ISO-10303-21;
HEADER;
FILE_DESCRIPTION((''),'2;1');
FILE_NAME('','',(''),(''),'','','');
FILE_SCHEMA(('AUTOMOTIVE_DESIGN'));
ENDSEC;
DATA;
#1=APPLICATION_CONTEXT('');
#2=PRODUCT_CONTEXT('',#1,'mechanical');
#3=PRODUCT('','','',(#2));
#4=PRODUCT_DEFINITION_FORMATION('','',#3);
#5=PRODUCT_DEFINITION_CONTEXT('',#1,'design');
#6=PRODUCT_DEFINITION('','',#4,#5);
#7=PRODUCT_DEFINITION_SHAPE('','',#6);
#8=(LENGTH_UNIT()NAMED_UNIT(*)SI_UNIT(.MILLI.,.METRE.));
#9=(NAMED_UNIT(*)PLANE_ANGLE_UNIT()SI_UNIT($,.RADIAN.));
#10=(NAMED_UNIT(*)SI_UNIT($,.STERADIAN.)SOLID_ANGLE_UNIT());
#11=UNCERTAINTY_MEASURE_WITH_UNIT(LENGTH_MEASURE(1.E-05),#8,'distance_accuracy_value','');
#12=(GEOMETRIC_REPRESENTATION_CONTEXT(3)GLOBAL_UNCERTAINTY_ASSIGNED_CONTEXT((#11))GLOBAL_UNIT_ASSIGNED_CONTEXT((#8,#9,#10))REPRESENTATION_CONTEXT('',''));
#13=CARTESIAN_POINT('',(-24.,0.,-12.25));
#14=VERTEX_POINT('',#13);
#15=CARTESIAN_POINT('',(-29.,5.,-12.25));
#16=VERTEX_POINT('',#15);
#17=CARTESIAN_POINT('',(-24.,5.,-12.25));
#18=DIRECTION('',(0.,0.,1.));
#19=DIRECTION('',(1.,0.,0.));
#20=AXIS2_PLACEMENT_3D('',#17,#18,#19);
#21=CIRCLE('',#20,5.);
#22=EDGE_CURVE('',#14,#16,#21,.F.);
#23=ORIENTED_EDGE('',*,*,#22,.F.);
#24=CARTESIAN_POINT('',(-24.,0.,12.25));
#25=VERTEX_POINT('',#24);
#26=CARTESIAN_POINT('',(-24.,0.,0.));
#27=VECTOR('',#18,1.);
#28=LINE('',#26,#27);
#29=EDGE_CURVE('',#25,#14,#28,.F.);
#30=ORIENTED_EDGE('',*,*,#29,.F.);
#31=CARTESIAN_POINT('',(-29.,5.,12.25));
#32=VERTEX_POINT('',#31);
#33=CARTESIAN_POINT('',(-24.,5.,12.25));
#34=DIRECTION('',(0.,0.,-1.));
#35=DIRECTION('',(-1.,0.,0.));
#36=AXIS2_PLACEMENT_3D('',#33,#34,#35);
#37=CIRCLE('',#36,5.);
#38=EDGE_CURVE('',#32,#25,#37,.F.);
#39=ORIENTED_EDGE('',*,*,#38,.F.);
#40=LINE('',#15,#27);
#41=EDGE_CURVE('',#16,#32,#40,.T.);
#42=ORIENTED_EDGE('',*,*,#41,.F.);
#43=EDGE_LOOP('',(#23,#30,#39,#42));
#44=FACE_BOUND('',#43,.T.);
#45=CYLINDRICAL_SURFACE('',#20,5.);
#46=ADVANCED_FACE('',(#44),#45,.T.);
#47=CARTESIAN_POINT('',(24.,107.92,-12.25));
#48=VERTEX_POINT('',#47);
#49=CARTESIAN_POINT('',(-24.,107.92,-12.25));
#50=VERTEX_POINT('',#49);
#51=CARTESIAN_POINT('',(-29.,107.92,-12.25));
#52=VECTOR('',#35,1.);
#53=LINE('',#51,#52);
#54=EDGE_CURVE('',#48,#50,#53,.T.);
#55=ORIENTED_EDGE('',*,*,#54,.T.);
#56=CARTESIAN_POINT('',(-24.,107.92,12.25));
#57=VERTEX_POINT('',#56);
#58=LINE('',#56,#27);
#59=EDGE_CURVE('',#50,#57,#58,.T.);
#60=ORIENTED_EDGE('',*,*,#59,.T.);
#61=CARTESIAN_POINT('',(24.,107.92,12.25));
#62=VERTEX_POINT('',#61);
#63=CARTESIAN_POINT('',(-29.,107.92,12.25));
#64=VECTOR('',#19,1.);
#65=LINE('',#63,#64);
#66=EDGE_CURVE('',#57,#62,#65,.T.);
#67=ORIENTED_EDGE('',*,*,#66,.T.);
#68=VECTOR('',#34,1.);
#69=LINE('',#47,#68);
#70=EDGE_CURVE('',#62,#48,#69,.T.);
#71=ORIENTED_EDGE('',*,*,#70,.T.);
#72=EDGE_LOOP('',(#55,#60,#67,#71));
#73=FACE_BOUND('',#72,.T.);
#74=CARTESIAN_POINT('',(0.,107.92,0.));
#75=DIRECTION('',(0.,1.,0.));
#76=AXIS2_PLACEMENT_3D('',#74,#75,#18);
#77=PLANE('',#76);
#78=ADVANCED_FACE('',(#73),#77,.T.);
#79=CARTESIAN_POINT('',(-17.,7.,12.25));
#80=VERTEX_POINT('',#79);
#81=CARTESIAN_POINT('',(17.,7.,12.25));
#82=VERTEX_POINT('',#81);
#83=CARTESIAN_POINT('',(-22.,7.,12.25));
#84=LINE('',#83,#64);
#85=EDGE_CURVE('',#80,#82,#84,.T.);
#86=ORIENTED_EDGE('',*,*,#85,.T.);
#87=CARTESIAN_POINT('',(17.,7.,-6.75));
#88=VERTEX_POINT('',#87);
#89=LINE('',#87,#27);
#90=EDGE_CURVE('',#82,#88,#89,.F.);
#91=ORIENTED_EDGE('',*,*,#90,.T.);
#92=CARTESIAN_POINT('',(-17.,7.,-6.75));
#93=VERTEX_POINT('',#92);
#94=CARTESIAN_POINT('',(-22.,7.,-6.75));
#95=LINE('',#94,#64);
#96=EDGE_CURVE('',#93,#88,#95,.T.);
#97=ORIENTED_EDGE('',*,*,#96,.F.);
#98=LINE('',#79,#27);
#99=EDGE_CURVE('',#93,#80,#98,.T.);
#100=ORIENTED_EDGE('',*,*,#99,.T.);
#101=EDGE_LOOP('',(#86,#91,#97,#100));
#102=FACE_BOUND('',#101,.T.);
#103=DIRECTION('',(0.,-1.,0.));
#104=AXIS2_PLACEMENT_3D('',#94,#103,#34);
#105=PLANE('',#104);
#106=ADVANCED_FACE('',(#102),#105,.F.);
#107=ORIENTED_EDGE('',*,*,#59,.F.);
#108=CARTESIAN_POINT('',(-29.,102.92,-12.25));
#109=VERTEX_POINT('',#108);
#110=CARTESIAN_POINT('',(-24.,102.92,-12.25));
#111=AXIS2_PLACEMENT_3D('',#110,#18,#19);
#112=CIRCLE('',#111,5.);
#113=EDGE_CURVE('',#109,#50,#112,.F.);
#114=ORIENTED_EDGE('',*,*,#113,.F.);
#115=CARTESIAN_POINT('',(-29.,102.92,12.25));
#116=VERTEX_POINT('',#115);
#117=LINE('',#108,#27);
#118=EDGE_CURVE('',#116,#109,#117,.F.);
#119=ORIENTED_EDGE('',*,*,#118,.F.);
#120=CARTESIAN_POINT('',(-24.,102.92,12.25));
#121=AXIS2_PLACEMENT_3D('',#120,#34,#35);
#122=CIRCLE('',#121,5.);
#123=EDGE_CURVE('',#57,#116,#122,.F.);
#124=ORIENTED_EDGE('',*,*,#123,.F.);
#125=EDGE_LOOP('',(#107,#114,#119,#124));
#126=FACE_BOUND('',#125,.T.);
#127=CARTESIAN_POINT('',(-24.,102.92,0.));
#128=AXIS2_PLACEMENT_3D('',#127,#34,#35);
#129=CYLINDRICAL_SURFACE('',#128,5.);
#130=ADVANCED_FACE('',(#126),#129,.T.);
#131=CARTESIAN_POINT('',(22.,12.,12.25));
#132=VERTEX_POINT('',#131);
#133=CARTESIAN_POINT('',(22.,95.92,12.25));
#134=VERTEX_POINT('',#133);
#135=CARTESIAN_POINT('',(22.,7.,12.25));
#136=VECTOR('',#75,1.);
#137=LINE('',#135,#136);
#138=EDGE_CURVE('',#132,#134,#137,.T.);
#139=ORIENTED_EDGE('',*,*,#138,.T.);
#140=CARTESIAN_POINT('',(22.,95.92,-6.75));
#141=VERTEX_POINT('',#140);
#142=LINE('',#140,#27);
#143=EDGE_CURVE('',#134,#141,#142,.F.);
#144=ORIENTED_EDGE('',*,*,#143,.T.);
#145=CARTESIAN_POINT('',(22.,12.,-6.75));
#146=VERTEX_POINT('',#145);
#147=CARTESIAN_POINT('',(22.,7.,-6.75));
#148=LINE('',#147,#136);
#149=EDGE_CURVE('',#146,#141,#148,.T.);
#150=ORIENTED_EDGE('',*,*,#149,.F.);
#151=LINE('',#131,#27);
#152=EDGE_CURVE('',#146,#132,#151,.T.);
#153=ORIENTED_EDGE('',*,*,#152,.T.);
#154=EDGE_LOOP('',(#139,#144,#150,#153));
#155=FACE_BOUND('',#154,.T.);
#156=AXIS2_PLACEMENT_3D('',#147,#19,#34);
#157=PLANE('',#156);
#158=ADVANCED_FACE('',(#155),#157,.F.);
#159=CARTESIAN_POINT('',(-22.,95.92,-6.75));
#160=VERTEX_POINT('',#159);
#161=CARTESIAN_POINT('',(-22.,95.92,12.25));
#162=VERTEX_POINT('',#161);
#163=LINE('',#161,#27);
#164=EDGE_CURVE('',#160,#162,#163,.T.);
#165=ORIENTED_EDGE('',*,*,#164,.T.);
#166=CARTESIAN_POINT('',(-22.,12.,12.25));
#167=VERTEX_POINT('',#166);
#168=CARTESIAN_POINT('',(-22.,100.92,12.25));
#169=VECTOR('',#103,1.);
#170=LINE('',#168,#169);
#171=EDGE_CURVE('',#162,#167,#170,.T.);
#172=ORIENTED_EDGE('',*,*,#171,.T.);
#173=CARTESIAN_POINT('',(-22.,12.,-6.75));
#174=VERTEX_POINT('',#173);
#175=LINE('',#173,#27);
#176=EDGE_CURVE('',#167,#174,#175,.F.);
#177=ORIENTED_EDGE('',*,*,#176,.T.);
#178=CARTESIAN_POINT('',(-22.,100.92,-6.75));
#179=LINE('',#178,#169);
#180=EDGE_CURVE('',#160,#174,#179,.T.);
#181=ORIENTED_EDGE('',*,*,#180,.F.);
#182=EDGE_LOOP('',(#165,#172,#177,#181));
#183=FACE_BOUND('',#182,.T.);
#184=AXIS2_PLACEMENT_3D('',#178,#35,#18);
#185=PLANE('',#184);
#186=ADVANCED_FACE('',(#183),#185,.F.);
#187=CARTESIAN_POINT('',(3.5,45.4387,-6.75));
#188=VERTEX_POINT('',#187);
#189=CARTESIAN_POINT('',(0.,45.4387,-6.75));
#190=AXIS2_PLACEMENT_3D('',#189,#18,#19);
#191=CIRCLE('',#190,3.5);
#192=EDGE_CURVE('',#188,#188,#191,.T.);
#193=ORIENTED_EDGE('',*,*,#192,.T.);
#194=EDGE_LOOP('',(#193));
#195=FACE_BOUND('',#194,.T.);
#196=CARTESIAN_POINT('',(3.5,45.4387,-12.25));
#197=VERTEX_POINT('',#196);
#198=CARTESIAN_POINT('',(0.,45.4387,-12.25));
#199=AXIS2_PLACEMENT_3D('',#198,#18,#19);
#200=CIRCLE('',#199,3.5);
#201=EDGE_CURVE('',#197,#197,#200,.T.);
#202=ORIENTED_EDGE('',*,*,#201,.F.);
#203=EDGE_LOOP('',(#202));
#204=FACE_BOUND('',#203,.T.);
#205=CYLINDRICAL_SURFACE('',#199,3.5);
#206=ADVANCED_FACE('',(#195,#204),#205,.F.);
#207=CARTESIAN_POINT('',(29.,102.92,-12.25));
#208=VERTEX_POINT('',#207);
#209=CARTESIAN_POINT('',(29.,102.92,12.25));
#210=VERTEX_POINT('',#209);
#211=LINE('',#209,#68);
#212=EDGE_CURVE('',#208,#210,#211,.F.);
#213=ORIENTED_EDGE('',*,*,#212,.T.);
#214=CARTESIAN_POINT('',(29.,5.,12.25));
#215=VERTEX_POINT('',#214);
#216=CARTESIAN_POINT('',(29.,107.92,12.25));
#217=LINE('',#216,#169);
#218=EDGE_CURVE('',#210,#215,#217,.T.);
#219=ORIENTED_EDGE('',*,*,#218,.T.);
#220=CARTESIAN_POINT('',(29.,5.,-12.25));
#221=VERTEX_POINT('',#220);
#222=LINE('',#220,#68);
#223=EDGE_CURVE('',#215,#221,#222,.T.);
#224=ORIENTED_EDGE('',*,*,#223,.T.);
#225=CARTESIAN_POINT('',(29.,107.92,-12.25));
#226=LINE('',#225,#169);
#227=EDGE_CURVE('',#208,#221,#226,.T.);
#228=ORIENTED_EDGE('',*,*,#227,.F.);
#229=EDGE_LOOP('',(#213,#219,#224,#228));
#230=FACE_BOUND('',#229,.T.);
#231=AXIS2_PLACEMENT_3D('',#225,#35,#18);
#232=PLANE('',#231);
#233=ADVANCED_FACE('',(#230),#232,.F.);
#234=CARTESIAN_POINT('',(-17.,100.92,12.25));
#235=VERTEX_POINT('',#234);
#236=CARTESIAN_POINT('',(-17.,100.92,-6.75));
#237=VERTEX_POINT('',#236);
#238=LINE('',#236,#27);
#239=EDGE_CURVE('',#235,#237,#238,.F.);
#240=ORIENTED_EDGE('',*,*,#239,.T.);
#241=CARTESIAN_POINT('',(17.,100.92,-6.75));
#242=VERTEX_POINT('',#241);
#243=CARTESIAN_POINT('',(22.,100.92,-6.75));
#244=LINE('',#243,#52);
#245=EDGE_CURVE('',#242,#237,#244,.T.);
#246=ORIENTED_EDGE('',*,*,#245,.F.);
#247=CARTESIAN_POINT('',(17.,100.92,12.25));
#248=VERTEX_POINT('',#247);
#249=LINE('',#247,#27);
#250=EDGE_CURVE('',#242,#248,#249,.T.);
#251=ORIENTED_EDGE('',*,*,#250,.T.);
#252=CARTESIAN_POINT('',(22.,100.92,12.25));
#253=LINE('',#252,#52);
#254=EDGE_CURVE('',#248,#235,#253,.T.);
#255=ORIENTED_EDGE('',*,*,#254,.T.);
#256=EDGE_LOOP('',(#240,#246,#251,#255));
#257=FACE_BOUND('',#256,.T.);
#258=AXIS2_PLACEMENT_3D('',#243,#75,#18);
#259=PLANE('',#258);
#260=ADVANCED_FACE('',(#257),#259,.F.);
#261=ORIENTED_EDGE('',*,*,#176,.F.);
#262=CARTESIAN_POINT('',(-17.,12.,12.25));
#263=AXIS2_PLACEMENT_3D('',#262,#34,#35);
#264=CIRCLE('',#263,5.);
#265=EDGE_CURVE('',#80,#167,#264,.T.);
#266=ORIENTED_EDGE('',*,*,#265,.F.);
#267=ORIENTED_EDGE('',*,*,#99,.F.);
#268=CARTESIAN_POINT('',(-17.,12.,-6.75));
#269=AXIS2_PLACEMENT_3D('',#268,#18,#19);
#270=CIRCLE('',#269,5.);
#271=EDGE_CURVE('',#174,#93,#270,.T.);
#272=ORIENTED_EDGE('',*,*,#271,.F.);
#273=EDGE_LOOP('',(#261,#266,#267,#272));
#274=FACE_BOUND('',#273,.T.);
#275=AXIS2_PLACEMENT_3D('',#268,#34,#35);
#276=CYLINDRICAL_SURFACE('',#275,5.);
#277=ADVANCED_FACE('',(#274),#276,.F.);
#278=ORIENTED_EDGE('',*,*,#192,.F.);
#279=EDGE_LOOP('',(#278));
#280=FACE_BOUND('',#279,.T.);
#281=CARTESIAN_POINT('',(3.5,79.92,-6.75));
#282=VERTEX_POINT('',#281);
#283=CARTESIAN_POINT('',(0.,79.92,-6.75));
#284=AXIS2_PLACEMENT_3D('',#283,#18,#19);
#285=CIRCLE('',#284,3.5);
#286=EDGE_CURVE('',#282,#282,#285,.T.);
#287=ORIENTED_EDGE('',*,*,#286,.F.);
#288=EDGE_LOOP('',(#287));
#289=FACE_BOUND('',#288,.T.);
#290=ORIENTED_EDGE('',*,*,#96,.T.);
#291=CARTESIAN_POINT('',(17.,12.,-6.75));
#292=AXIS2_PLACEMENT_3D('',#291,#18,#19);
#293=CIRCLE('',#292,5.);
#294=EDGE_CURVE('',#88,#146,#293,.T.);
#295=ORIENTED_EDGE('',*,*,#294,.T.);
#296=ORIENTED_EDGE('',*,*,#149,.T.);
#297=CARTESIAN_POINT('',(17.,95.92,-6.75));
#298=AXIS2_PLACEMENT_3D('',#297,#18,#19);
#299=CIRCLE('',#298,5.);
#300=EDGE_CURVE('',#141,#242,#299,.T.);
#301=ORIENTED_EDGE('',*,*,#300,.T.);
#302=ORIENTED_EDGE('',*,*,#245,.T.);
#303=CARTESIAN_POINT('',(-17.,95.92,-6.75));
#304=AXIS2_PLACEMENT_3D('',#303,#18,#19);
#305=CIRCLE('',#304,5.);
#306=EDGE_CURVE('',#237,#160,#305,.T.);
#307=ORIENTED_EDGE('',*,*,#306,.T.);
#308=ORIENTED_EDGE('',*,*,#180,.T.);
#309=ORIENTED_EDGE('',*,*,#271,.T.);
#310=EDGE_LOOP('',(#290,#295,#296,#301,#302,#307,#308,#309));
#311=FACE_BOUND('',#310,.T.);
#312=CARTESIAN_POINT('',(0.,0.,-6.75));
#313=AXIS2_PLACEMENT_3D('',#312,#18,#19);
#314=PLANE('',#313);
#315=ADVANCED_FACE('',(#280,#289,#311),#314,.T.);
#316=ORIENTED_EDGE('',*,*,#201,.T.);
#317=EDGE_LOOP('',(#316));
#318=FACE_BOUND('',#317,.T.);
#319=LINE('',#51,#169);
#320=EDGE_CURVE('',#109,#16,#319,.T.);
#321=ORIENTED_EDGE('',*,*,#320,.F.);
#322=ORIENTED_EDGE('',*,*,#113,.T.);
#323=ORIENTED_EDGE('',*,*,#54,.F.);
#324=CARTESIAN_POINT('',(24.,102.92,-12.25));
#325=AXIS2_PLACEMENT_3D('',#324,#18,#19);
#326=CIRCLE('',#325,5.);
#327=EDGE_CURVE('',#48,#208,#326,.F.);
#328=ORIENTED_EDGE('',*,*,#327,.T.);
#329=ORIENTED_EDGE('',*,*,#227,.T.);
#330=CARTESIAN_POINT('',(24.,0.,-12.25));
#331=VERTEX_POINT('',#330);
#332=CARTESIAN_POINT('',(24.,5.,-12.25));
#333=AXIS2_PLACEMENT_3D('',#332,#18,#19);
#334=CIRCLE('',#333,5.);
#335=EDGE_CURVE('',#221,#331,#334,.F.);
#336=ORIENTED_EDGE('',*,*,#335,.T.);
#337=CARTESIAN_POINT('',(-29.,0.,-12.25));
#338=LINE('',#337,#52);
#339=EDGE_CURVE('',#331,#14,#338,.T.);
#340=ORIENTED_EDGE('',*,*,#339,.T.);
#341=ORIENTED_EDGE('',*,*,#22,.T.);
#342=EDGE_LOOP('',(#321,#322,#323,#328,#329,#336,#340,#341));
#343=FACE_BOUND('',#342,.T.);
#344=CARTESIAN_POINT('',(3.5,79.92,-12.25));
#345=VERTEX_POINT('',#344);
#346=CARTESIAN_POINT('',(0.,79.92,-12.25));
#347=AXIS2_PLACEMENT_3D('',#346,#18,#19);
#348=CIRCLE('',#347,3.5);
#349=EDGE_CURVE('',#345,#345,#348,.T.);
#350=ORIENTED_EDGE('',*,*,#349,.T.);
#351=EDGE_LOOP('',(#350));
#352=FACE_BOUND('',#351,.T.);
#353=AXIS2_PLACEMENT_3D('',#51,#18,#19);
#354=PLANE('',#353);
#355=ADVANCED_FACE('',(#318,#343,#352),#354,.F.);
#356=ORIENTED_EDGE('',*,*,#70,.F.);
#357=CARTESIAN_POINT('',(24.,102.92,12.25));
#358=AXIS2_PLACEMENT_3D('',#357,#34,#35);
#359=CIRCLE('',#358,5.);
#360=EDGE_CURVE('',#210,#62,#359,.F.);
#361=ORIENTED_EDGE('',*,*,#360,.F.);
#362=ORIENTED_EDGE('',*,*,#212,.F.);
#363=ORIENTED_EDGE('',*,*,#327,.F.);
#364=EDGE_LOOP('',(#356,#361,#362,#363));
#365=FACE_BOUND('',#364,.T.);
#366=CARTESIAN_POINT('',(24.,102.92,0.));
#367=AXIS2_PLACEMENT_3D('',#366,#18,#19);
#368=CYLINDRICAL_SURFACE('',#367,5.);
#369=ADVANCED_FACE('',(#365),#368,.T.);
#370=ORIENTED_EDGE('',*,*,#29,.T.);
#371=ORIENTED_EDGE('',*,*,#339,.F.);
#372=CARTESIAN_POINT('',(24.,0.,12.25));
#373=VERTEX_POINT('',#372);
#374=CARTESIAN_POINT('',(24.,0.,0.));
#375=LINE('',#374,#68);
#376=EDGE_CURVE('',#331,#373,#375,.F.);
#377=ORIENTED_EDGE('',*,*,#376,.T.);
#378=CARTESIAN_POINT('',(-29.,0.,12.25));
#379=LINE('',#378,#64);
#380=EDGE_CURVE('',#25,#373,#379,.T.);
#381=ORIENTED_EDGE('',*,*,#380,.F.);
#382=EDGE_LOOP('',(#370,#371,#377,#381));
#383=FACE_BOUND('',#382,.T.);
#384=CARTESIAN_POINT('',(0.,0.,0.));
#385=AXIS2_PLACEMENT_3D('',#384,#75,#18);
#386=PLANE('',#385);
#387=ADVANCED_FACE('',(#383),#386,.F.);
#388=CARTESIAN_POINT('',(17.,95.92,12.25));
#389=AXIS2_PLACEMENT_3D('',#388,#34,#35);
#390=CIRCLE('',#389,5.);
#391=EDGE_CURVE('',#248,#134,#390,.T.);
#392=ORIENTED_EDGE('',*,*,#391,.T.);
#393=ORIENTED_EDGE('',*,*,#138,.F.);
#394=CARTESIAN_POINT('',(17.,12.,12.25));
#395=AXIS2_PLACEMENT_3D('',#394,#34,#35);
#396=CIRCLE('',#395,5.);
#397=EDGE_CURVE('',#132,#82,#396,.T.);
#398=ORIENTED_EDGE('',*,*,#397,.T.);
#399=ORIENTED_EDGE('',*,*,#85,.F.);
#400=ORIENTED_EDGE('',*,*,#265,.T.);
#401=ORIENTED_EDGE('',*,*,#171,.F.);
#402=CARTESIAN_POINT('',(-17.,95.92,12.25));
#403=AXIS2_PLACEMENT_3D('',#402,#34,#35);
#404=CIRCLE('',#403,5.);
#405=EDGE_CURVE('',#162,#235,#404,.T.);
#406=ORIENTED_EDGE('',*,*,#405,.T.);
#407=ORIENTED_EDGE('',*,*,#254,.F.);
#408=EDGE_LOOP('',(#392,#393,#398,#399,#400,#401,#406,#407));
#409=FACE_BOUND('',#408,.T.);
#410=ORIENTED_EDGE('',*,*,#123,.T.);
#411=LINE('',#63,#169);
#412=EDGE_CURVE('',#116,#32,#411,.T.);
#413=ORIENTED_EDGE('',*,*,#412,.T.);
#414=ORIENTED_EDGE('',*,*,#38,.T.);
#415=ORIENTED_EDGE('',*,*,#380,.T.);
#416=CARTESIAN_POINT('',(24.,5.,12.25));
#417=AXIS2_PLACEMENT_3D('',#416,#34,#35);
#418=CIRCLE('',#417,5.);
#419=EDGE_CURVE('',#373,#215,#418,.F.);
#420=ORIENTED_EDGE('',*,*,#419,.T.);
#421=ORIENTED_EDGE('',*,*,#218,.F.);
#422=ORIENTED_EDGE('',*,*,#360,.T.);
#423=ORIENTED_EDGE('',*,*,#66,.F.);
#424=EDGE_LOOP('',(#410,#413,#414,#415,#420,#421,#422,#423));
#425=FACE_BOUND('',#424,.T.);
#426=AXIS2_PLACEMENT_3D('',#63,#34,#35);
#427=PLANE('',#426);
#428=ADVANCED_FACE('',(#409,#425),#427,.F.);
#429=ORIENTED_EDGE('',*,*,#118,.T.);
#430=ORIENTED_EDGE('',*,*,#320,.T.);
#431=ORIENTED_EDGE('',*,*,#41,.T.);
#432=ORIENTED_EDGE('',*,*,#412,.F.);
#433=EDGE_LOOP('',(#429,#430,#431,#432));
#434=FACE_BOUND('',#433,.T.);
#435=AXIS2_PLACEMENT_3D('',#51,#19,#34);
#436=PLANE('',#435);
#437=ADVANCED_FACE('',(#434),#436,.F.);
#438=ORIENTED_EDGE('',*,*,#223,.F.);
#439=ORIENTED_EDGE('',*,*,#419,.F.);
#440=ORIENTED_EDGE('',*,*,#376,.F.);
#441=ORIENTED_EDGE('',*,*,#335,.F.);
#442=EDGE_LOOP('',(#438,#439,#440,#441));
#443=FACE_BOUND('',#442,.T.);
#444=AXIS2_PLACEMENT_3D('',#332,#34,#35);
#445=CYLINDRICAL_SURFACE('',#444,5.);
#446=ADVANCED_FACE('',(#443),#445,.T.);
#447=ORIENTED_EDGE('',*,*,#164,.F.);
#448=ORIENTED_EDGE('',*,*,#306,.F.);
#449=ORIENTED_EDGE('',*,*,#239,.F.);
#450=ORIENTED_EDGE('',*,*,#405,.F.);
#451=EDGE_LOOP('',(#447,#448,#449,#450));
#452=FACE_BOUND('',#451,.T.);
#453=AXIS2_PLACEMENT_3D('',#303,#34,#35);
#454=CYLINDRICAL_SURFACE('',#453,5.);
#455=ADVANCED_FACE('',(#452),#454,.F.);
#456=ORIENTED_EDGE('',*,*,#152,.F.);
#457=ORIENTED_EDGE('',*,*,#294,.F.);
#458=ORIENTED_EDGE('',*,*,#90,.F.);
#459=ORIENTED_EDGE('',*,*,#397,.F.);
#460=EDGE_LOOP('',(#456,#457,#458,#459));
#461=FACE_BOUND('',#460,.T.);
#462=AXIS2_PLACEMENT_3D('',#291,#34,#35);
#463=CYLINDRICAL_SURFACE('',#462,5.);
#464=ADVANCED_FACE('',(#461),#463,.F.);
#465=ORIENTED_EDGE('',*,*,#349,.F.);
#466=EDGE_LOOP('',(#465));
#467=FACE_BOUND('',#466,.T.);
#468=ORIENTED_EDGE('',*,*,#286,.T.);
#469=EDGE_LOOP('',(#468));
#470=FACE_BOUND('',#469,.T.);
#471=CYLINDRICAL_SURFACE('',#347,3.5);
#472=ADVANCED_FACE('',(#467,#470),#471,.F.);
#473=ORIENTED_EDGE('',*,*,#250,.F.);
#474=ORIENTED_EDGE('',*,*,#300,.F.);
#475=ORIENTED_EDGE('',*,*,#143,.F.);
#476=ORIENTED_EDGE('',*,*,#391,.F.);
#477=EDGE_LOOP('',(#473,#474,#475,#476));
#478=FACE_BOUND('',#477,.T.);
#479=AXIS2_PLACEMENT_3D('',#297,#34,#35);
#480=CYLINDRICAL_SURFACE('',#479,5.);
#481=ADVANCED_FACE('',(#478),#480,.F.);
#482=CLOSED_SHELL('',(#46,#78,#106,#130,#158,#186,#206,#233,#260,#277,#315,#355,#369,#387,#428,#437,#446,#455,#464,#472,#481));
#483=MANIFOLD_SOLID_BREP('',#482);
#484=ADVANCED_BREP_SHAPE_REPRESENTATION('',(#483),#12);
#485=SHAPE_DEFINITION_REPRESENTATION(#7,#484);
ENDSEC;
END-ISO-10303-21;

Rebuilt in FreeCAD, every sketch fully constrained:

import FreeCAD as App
import Part
import Sketcher
from FreeCAD import Vector


def edges_at(feature, points):
    """Names of the edges that pass closest to the given points."""
    edges = feature.Shape.Edges
    near = lambda p: min(range(len(edges)), key=lambda i: edges[i].distToShape(Part.Vertex(*p))[0])
    return sorted({f"Edge{near(p) + 1}" for p in points})

doc = App.newDocument("Part")
body = doc.addObject("PartDesign::Body", "Body")

sketch1 = doc.addObject("Sketcher::SketchObject", "Sketch")
body.addObject(sketch1)
sketch1.AttachmentSupport = (doc.XZ_Plane, [""])
sketch1.MapMode = "FlatFace"
sketch1.addGeometry([
    Part.LineSegment(Vector(-29, -12, 0), Vector(-29, 12, 0)),
    Part.LineSegment(Vector(-29, 12, 0), Vector(29, 12, 0)),
    Part.LineSegment(Vector(29, 12, 0), Vector(29, -12, 0)),
    Part.LineSegment(Vector(29, -12, 0), Vector(-29, -12, 0)),
], False)
sketch1.addConstraint([
    Sketcher.Constraint("Coincident", 0, 2, 1, 1),
    Sketcher.Constraint("Coincident", 1, 2, 2, 1),
    Sketcher.Constraint("Coincident", 2, 2, 3, 1),
    Sketcher.Constraint("Coincident", 3, 2, 0, 1),
    Sketcher.Constraint("Vertical", 0),
    Sketcher.Constraint("Horizontal", 1),
    Sketcher.Constraint("Vertical", 2),
    Sketcher.Constraint("Horizontal", 3),
    Sketcher.Constraint("Symmetric", 0, 2, 2, 2, -1, 1),
    Sketcher.Constraint("DistanceX", 1, 1, 1, 2, 58.0),
    Sketcher.Constraint("DistanceY", 0, 1, 0, 2, 24.5),
])
pad1 = doc.addObject("PartDesign::Pad", "Pad")
body.addObject(pad1)
pad1.Profile = sketch1
pad1.Length = 107.92
pad1.Reversed = True
doc.recompute()

fillet = doc.addObject("PartDesign::Fillet", "Fillet")
body.addObject(fillet)
fillet.Base = (pad1, edges_at(pad1, [
    (29, 107.92, 0),
    (-29, 107.92, 0),
    (29, 0, 0),
    (-29, 0, 0),
]))
fillet.Radius = 5

sketch2 = doc.addObject("Sketcher::SketchObject", "Sketch001")
body.addObject(sketch2)
sketch2.AttachmentSupport = (doc.XY_Plane, [""])
sketch2.MapMode = "FlatFace"
sketch2.AttachmentOffset = App.Placement(Vector(0, 0, 12.25), App.Rotation())
sketch2.addGeometry([
    Part.LineSegment(Vector(-22, 101, 0), Vector(-22, 7, 0)),
    Part.LineSegment(Vector(-22, 7, 0), Vector(22, 7, 0)),
    Part.LineSegment(Vector(22, 7, 0), Vector(22, 101, 0)),
    Part.LineSegment(Vector(22, 101, 0), Vector(-22, 101, 0)),
], False)
sketch2.addConstraint([
    Sketcher.Constraint("Coincident", 0, 2, 1, 1),
    Sketcher.Constraint("Coincident", 1, 2, 2, 1),
    Sketcher.Constraint("Coincident", 2, 2, 3, 1),
    Sketcher.Constraint("Coincident", 3, 2, 0, 1),
    Sketcher.Constraint("Vertical", 0),
    Sketcher.Constraint("Horizontal", 1),
    Sketcher.Constraint("Vertical", 2),
    Sketcher.Constraint("Horizontal", 3),
    Sketcher.Constraint("DistanceX", 1, 1, 1, 2, 44.0),
    Sketcher.Constraint("DistanceX", 0, 2, -1, 1, 22.0),
    Sketcher.Constraint("DistanceY", -1, 1, 0, 2, 7.0),
    Sketcher.Constraint("DistanceY", 0, 2, 0, 1, 93.92),
])
pocket1 = doc.addObject("PartDesign::Pocket", "Pocket")
body.addObject(pocket1)
pocket1.Profile = sketch2
pocket1.Length = 19
doc.recompute()

fillet2 = doc.addObject("PartDesign::Fillet", "Fillet001")
body.addObject(fillet2)
fillet2.Base = (pocket1, edges_at(pocket1, [
    (-22, 7, 2.75),
    (-22, 100.92, 2.75),
    (22, 100.92, 2.75),
    (22, 7, 2.75),
]))
fillet2.Radius = 5

sketch3 = doc.addObject("Sketcher::SketchObject", "Sketch002")
body.addObject(sketch3)
sketch3.AttachmentSupport = (doc.XY_Plane, [""])
sketch3.MapMode = "FlatFace"
sketch3.AttachmentOffset = App.Placement(Vector(0, 0, -6.75), App.Rotation())
sketch3.addGeometry([
    Part.Circle(Vector(0, 79.9, 0), Vector(0, 0, 1), 3.5),
    Part.Circle(Vector(0, 45.4, 0), Vector(0, 0, 1), 3.5),
], False)
sketch3.addConstraint([
    Sketcher.Constraint("Equal", 0, 1),
    Sketcher.Constraint("PointOnObject", 0, 3, -2),
    Sketcher.Constraint("PointOnObject", 1, 3, -2),
    Sketcher.Constraint("Diameter", 0, 7.0),
    Sketcher.Constraint("DistanceY", -1, 1, 0, 3, 79.92),
    Sketcher.Constraint("DistanceY", -1, 1, 1, 3, 45.4387),
])
pocket2 = doc.addObject("PartDesign::Pocket", "Pocket001")
body.addObject(pocket2)
pocket2.Profile = sketch3
pocket2.Type = "ThroughAll"
pocket2.Midplane = True

doc.recompute()
